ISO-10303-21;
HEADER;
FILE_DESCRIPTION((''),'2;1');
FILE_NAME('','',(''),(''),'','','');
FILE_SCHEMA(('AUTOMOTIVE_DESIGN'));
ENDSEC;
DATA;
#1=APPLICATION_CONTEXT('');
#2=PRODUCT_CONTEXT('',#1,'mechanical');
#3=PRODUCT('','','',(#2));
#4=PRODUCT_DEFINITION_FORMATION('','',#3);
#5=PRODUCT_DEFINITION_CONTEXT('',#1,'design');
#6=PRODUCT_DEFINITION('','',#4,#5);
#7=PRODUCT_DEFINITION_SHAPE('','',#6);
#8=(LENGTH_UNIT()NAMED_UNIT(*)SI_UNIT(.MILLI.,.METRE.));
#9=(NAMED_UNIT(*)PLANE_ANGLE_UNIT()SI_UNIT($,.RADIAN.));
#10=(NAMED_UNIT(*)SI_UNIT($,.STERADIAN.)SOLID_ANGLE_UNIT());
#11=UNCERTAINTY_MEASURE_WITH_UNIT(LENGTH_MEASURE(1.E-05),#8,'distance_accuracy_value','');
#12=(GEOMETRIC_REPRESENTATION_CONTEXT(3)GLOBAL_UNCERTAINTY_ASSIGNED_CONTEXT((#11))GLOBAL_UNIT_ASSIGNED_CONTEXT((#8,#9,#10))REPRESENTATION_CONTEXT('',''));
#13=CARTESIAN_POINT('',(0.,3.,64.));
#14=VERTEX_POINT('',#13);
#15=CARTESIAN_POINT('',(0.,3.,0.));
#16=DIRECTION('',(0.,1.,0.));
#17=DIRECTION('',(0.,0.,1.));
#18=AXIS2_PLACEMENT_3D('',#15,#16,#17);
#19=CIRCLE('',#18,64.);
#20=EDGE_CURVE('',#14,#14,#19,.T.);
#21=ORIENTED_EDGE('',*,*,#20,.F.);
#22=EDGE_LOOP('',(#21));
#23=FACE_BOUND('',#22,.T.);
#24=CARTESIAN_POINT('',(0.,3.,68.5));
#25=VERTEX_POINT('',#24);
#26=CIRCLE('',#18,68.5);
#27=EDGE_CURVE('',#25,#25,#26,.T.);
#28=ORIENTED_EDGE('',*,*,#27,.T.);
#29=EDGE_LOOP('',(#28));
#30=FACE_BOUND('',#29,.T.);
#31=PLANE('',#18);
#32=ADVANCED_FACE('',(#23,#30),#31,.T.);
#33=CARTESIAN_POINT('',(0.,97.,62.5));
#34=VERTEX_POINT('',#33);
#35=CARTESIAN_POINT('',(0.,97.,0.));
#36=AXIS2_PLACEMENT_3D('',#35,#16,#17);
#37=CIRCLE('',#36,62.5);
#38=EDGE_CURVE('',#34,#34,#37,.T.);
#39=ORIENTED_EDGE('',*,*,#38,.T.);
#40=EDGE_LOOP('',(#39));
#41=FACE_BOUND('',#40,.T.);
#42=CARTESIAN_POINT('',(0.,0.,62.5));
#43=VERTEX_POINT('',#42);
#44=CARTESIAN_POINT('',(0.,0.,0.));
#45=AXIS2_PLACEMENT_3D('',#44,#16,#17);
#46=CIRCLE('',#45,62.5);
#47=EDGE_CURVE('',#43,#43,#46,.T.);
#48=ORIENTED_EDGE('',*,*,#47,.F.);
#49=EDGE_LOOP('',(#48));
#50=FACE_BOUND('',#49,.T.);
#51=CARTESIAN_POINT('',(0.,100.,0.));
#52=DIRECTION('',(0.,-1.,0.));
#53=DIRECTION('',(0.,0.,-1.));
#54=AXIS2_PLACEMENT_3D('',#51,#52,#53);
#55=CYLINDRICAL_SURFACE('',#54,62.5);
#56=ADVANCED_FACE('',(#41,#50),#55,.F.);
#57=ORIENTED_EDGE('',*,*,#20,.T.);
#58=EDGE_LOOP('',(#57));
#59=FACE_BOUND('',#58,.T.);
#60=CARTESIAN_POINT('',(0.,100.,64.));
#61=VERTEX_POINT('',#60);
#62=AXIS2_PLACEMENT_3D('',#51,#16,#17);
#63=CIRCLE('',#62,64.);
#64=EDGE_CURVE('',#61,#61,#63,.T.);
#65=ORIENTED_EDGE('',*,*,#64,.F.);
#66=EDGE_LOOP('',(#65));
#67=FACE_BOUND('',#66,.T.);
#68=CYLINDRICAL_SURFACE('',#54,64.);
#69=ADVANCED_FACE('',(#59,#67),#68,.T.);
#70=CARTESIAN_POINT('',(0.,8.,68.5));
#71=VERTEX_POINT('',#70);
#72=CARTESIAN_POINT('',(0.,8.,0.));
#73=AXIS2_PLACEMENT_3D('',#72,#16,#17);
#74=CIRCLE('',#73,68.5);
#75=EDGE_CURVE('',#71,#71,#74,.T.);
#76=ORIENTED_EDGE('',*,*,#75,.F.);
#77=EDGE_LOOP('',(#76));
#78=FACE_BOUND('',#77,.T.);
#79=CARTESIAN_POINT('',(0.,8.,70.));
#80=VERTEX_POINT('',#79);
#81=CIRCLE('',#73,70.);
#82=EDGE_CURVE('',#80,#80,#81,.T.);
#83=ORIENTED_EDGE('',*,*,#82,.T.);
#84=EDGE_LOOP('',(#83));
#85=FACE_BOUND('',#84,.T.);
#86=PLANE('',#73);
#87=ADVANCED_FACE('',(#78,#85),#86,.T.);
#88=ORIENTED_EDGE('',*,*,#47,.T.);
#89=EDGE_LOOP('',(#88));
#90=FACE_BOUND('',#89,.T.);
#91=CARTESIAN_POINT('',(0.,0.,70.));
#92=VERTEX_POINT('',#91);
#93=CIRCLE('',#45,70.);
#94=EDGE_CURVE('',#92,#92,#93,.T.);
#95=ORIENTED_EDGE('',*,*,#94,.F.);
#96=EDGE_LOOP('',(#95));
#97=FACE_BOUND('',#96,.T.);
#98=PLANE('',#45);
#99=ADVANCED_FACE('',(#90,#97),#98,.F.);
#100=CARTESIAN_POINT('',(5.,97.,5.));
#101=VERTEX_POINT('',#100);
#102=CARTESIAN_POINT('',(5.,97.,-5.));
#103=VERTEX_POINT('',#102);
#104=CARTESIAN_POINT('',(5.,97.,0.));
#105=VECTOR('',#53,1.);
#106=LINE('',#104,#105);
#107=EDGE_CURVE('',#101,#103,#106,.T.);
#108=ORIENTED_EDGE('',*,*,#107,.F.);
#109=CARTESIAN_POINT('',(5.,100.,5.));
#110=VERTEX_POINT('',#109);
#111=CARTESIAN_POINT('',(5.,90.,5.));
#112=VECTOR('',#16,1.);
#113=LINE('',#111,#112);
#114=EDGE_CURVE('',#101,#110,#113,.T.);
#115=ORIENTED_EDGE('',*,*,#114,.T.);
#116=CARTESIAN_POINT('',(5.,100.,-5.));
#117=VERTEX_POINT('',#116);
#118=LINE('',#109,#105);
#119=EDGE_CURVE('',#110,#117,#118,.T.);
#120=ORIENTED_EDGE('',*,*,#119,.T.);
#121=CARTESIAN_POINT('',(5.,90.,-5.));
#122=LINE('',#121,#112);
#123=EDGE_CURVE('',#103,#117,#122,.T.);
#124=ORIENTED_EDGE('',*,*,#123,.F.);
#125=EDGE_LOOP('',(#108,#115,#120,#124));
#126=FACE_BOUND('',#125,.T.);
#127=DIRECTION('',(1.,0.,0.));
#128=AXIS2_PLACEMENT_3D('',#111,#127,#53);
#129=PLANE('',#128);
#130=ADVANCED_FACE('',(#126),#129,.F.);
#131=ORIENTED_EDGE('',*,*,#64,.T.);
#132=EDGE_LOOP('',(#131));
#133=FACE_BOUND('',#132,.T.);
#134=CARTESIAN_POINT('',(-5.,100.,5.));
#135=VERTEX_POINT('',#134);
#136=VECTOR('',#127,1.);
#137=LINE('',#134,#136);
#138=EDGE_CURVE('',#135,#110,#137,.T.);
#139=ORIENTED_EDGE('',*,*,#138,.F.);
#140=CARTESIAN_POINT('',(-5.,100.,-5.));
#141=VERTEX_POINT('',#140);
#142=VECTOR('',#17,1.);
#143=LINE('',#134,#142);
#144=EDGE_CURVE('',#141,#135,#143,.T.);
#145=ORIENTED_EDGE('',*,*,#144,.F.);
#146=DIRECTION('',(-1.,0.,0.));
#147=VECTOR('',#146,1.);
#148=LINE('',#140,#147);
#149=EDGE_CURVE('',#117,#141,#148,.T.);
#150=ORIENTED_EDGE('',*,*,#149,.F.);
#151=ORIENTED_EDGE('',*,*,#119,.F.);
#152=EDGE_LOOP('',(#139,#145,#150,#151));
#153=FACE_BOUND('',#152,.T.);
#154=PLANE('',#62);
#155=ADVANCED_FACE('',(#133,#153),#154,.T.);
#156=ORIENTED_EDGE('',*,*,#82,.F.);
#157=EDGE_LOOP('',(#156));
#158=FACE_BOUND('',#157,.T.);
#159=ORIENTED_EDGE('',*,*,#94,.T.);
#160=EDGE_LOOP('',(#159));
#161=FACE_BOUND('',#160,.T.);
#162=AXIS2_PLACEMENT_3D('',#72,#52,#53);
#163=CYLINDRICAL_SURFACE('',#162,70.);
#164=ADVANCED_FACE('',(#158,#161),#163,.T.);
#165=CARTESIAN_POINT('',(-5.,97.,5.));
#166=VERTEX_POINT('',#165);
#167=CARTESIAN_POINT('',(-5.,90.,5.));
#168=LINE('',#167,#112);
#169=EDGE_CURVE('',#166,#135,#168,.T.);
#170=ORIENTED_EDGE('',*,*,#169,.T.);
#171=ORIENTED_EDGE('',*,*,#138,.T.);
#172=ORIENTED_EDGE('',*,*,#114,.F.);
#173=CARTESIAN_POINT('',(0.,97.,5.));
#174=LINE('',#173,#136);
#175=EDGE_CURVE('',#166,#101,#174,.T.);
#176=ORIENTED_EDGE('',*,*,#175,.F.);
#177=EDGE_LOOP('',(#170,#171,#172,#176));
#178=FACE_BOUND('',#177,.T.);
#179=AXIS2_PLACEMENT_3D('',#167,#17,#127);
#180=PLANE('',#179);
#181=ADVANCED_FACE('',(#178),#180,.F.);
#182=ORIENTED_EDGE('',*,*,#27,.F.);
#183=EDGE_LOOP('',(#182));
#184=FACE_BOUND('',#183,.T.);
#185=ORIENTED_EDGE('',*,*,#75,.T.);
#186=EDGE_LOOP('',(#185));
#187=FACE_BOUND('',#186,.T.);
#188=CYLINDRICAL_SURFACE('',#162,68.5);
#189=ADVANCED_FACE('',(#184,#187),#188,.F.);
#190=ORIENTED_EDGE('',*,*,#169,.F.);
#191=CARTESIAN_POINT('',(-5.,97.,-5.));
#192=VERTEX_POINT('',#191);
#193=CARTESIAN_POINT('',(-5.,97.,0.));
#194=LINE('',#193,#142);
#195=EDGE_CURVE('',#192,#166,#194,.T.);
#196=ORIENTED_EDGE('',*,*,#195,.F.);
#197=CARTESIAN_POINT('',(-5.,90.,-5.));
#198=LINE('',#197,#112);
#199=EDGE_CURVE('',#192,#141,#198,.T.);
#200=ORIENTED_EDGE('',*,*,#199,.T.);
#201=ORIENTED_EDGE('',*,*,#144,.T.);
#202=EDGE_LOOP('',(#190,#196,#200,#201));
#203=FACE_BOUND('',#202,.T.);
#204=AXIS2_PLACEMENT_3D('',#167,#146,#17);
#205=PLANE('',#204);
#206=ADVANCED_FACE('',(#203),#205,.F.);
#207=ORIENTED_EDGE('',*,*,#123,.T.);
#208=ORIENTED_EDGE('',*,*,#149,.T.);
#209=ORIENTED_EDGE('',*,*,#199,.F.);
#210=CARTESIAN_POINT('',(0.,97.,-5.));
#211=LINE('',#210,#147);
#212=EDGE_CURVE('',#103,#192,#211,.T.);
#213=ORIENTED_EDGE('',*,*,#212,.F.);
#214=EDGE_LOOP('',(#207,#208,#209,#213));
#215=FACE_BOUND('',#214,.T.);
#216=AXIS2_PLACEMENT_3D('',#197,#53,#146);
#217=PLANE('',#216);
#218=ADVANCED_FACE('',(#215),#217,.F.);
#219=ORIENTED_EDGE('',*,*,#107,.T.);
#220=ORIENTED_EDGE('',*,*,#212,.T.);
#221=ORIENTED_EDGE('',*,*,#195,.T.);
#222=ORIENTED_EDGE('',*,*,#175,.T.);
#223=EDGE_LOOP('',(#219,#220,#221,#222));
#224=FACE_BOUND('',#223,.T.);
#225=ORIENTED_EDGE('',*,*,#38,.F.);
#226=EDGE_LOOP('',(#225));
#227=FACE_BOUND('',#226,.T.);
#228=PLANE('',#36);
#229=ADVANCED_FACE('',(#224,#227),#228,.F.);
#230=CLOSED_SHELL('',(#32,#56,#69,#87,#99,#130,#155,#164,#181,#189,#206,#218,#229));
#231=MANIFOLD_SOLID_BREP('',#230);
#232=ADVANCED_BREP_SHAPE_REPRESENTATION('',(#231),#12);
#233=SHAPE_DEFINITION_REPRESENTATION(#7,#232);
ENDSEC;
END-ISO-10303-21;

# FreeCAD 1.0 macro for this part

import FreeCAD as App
import Part
import Sketcher
from FreeCAD import Vector
Q = App.Units.Quantity


def add_polygon(sketch, points):
    """Adds a closed chain of lines whose ends are joined by coincident constraints."""
    first, n = sketch.GeometryCount, len(points)
    for a, b in zip(points, points[1:] + points[:1]):
        sketch.addGeometry(Part.LineSegment(App.Vector(*a, 0), App.Vector(*b, 0)), False)
    for i in range(n):
        sketch.addConstraint(Sketcher.Constraint("Coincident", first + i, 2, first + (i + 1) % n, 1))

doc = App.newDocument("Part")
body = doc.addObject("PartDesign::Body", "Body")

# Sketch on XZ plane
sketch1 = doc.addObject("Sketcher::SketchObject", "Sketch")
body.addObject(sketch1)
sketch1.AttachmentSupport = (doc.XZ_Plane, [""])
sketch1.MapMode = "FlatFace"
sketch1.addGeometry(Part.Circle(Vector(0, 0, 0), Vector(0, 0, 1), 70), False)
sketch1.addGeometry(Part.Circle(Vector(0, 0, 0), Vector(0, 0, 1), 68), False)
sketch1.addConstraint(Sketcher.Constraint("Coincident", 0, 3, -1, 1))
sketch1.addConstraint(Sketcher.Constraint("Coincident", 1, 3, -1, 1))
sketch1.addConstraint(Sketcher.Constraint("Diameter", 0, Q("140 mm")))
sketch1.addConstraint(Sketcher.Constraint("Diameter", 1, Q("137 mm")))
pad1 = doc.addObject("PartDesign::Pad", "Pad")
body.addObject(pad1)
pad1.Profile = sketch1
pad1.Length = 8
pad1.Reversed = True

# Sketch on XZ plane
sketch2 = doc.addObject("Sketcher::SketchObject", "Sketch001")
body.addObject(sketch2)
sketch2.AttachmentSupport = (doc.XZ_Plane, [""])
sketch2.MapMode = "FlatFace"
sketch2.addGeometry(Part.Circle(Vector(0, 0, 0), Vector(0, 0, 1), 68), False)
sketch2.addGeometry(Part.Circle(Vector(0, 0, 0), Vector(0, 0, 1), 64), False)
sketch2.addConstraint(Sketcher.Constraint("Coincident", 0, 3, -1, 1))
sketch2.addConstraint(Sketcher.Constraint("Coincident", 1, 3, -1, 1))
sketch2.addConstraint(Sketcher.Constraint("Diameter", 0, Q("137 mm")))
sketch2.addConstraint(Sketcher.Constraint("Diameter", 1, Q("128 mm")))
pad2 = doc.addObject("PartDesign::Pad", "Pad001")
body.addObject(pad2)
pad2.Profile = sketch2
pad2.Length = 3
pad2.Reversed = True

# Sketch on XZ plane
sketch3 = doc.addObject("Sketcher::SketchObject", "Sketch002")
body.addObject(sketch3)
sketch3.AttachmentSupport = (doc.XZ_Plane, [""])
sketch3.MapMode = "FlatFace"
sketch3.addGeometry(Part.Circle(Vector(0, 0, 0), Vector(0, 0, 1), 64), False)
sketch3.addGeometry(Part.Circle(Vector(0, 0, 0), Vector(0, 0, 1), 62), False)
sketch3.addConstraint(Sketcher.Constraint("Coincident", 0, 3, -1, 1))
sketch3.addConstraint(Sketcher.Constraint("Coincident", 1, 3, -1, 1))
sketch3.addConstraint(Sketcher.Constraint("Diameter", 0, Q("128 mm")))
sketch3.addConstraint(Sketcher.Constraint("Diameter", 1, Q("125 mm")))
pad3 = doc.addObject("PartDesign::Pad", "Pad002")
body.addObject(pad3)
pad3.Profile = sketch3
pad3.Length = 100
pad3.Reversed = True

# Sketch on XZ plane
sketch4 = doc.addObject("Sketcher::SketchObject", "Sketch003")
body.addObject(sketch4)
sketch4.AttachmentSupport = (doc.XZ_Plane, [""])
sketch4.MapMode = "FlatFace"
sketch4.AttachmentOffset = App.Placement(Vector(0, 0, -97), App.Rotation())
sketch4.addGeometry(Part.Circle(Vector(0, 0, 0), Vector(0, 0, 1), 62), False)
sketch4.addConstraint(Sketcher.Constraint("Coincident", 0, 3, -1, 1))
sketch4.addConstraint(Sketcher.Constraint("Diameter", 0, Q("125 mm")))
pad4 = doc.addObject("PartDesign::Pad", "Pad003")
body.addObject(pad4)
pad4.Profile = sketch4
pad4.Length = 3
pad4.Reversed = True

# Sketch on XZ plane
sketch5 = doc.addObject("Sketcher::SketchObject", "Sketch004")
body.addObject(sketch5)
sketch5.AttachmentSupport = (doc.XZ_Plane, [""])
sketch5.MapMode = "FlatFace"
sketch5.AttachmentOffset = App.Placement(Vector(0, 0, -100), App.Rotation())
add_polygon(sketch5, [(-5, -5), (-5, 5), (5, 5), (5, -5)])  # lines 0-3
sketch5.addConstraint(Sketcher.Constraint("Vertical", 0))
sketch5.addConstraint(Sketcher.Constraint("Horizontal", 1))
sketch5.addConstraint(Sketcher.Constraint("Vertical", 2))
sketch5.addConstraint(Sketcher.Constraint("Horizontal", 3))
sketch5.addConstraint(Sketcher.Constraint("Symmetric", 0, 2, 2, 2, -1, 1))
sketch5.addConstraint(Sketcher.Constraint("Equal", 3, 0))
sketch5.addConstraint(Sketcher.Constraint("DistanceX", 1, 1, 1, 2, Q("10 mm")))
pocket1 = doc.addObject("PartDesign::Pocket", "Pocket")
body.addObject(pocket1)
pocket1.Profile = sketch5
pocket1.Length = 10
pocket1.Reversed = True

doc.recompute()
